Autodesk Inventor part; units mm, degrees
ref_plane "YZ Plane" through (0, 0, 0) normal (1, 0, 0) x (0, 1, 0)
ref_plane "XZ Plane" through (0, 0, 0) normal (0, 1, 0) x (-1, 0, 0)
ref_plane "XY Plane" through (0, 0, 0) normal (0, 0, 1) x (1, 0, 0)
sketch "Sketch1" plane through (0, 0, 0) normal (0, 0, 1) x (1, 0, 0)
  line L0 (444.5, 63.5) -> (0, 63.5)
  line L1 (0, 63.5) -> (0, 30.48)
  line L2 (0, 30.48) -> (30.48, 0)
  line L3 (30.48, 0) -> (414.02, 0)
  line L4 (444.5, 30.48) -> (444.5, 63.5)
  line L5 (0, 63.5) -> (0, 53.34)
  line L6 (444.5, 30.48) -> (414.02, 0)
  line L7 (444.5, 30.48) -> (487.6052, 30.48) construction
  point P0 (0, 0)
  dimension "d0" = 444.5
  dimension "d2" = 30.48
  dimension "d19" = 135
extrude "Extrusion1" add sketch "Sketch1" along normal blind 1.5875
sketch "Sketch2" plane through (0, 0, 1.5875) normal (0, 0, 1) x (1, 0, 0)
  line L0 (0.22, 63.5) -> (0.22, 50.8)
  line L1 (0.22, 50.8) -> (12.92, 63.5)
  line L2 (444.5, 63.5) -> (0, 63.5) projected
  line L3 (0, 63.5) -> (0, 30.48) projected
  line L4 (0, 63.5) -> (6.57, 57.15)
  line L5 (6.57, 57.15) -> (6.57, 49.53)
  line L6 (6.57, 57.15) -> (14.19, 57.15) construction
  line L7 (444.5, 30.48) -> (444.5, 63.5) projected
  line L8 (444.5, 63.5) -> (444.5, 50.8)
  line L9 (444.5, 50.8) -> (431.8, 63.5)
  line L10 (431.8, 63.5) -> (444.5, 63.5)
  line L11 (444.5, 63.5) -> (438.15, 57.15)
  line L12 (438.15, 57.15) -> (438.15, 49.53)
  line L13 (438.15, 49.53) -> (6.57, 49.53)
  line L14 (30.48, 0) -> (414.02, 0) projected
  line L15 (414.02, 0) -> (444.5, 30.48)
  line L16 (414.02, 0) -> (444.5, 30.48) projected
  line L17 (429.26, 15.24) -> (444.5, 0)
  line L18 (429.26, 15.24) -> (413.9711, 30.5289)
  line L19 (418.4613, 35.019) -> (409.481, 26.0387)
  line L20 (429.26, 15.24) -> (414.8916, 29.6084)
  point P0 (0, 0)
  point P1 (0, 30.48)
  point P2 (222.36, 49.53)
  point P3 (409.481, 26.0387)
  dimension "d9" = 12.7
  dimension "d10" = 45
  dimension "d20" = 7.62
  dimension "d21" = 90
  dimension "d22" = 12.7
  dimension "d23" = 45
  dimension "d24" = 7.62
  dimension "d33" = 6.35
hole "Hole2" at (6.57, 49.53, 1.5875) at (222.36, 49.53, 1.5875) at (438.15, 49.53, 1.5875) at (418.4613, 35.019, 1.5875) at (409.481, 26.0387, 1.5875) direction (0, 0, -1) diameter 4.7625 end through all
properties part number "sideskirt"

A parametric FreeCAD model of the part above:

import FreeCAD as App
import Part
import Sketcher
from FreeCAD import Vector
Q = App.Units.Quantity

doc = App.newDocument("Part")
body = doc.addObject("PartDesign::Body", "Body")

# Sketch on XY plane
sketch1 = body.newObject("Sketcher::SketchObject", "Sketch")
sketch1.AttachmentSupport = (doc.getObject("XY_Plane"), [""])
sketch1.MapMode = "FlatFace"
sketch1.addGeometry(Part.LineSegment(Vector(444.5, 30.48, 0), Vector(444.5, 63.5, 0)), False)
sketch1.addGeometry(Part.LineSegment(Vector(444.5, 63.5, 0), Vector(0, 63.5, 0)), False)
sketch1.addGeometry(Part.LineSegment(Vector(0, 63.5, 0), Vector(0, 30.48, 0)), False)
sketch1.addGeometry(Part.LineSegment(Vector(0, 30.48, 0), Vector(30.48, 0, 0)), False)
sketch1.addGeometry(Part.LineSegment(Vector(30.48, 0, 0), Vector(414.02, 0, 0)), False)
sketch1.addGeometry(Part.LineSegment(Vector(414.02, 0, 0), Vector(444.5, 30.48, 0)), False)
sketch1.addConstraint(Sketcher.Constraint("Coincident", 0, 2, 1, 1))
sketch1.addConstraint(Sketcher.Constraint("Coincident", 1, 2, 2, 1))
sketch1.addConstraint(Sketcher.Constraint("Coincident", 2, 2, 3, 1))
sketch1.addConstraint(Sketcher.Constraint("Coincident", 3, 2, 4, 1))
sketch1.addConstraint(Sketcher.Constraint("Coincident", 4, 2, 5, 1))
sketch1.addConstraint(Sketcher.Constraint("Coincident", 5, 2, 0, 1))
sketch1.addConstraint(Sketcher.Constraint("Vertical", 0))
sketch1.addConstraint(Sketcher.Constraint("Horizontal", 1))
sketch1.addConstraint(Sketcher.Constraint("Vertical", 2))
sketch1.addConstraint(Sketcher.Constraint("Horizontal", 4))
sketch1.addConstraint(Sketcher.Constraint("PointOnObject", 1, 2, -2))
sketch1.addConstraint(Sketcher.Constraint("PointOnObject", 3, 2, -1))
sketch1.addConstraint(Sketcher.Constraint("Perpendicular", 3, 5))
sketch1.addConstraint(Sketcher.Constraint("Horizontal", 2, 2, 5, 2))
sketch1.addConstraint(Sketcher.Constraint("Equal", 3, 5))
sketch1.addConstraint(Sketcher.Constraint("DistanceX", 1, 2, 1, 1, Q("17.5 in")))
sketch1.addConstraint(Sketcher.Constraint("DistanceY", -1, 1, 2, 2, Q("1.2 in")))
sketch1.addConstraint(Sketcher.Constraint("DistanceY", 0, 1, 0, 2, Q("1.3 in")))
pad1 = body.newObject("PartDesign::Pad", "Pad")
pad1.Profile = sketch1
pad1.Length = Q("0.0625 in")

# Sketch on XY plane
sketch2 = body.newObject("Sketcher::SketchObject", "Sketch001")
sketch2.AttachmentSupport = (doc.getObject("XY_Plane"), [""])
sketch2.MapMode = "FlatFace"
sketch2.AttachmentOffset = App.Placement(Vector(0, 0, 0.0625 * 25.4), App.Rotation())
sketch2.addGeometry(Part.Circle(Vector(6.57, 49.53, 0), Vector(0, 0, 1), 2.38125), False)
sketch2.addGeometry(Part.Circle(Vector(222.36, 49.53, 0), Vector(0, 0, 1), 2.38125), False)
sketch2.addGeometry(Part.Circle(Vector(438.15, 49.53, 0), Vector(0, 0, 1), 2.38125), False)
sketch2.addGeometry(Part.Circle(Vector(418.4613, 35.019, 0), Vector(0, 0, 1), 2.38125), False)
sketch2.addGeometry(Part.Circle(Vector(409.481, 26.0387, 0), Vector(0, 0, 1), 2.38125), False)
sketch2.addConstraint(Sketcher.Constraint("Equal", 0, 1))
sketch2.addConstraint(Sketcher.Constraint("Equal", 1, 2))
sketch2.addConstraint(Sketcher.Constraint("Equal", 2, 3))
sketch2.addConstraint(Sketcher.Constraint("Equal", 3, 4))
sketch2.addConstraint(Sketcher.Constraint("Horizontal", 0, 3, 1, 3))
sketch2.addConstraint(Sketcher.Constraint("Horizontal", 1, 3, 2, 3))
sketch2.addConstraint(Sketcher.Constraint("Diameter", 0, Q("0.1875 in")))
sketch2.addConstraint(Sketcher.Constraint("DistanceY", -1, 1, 0, 3, Q("1.95 in")))
sketch2.addConstraint(Sketcher.Constraint("DistanceX", -1, 1, 2, 3, Q("17.25 in")))
sketch2.addConstraint(Sketcher.Constraint("DistanceY", -1, 1, 3, 3, Q("1.3787 in")))
sketch2.addConstraint(Sketcher.Constraint("DistanceX", -1, 1, 4, 3, Q("16.1213 in")))
sketch2.addConstraint(Sketcher.Constraint("DistanceX", 0, 3, 3, 3, Q("16.2162 in")))
sketch2.addConstraint(Sketcher.Constraint("DistanceX", -1, 1, 0, 3, 6.57))
sketch2.addConstraint(Sketcher.Constraint("DistanceX", -1, 1, 1, 3, 222.36))
sketch2.addConstraint(Sketcher.Constraint("DistanceY", -1, 1, 4, 3, 26.0387))
doc.recompute()
hole = body.newObject("PartDesign::Hole", "Hole")
hole.Profile = sketch2
hole.ThreadType = "None"
hole.Diameter = Q("0.1875 in")
hole.DepthType = "ThroughAll"

doc.recompute()
